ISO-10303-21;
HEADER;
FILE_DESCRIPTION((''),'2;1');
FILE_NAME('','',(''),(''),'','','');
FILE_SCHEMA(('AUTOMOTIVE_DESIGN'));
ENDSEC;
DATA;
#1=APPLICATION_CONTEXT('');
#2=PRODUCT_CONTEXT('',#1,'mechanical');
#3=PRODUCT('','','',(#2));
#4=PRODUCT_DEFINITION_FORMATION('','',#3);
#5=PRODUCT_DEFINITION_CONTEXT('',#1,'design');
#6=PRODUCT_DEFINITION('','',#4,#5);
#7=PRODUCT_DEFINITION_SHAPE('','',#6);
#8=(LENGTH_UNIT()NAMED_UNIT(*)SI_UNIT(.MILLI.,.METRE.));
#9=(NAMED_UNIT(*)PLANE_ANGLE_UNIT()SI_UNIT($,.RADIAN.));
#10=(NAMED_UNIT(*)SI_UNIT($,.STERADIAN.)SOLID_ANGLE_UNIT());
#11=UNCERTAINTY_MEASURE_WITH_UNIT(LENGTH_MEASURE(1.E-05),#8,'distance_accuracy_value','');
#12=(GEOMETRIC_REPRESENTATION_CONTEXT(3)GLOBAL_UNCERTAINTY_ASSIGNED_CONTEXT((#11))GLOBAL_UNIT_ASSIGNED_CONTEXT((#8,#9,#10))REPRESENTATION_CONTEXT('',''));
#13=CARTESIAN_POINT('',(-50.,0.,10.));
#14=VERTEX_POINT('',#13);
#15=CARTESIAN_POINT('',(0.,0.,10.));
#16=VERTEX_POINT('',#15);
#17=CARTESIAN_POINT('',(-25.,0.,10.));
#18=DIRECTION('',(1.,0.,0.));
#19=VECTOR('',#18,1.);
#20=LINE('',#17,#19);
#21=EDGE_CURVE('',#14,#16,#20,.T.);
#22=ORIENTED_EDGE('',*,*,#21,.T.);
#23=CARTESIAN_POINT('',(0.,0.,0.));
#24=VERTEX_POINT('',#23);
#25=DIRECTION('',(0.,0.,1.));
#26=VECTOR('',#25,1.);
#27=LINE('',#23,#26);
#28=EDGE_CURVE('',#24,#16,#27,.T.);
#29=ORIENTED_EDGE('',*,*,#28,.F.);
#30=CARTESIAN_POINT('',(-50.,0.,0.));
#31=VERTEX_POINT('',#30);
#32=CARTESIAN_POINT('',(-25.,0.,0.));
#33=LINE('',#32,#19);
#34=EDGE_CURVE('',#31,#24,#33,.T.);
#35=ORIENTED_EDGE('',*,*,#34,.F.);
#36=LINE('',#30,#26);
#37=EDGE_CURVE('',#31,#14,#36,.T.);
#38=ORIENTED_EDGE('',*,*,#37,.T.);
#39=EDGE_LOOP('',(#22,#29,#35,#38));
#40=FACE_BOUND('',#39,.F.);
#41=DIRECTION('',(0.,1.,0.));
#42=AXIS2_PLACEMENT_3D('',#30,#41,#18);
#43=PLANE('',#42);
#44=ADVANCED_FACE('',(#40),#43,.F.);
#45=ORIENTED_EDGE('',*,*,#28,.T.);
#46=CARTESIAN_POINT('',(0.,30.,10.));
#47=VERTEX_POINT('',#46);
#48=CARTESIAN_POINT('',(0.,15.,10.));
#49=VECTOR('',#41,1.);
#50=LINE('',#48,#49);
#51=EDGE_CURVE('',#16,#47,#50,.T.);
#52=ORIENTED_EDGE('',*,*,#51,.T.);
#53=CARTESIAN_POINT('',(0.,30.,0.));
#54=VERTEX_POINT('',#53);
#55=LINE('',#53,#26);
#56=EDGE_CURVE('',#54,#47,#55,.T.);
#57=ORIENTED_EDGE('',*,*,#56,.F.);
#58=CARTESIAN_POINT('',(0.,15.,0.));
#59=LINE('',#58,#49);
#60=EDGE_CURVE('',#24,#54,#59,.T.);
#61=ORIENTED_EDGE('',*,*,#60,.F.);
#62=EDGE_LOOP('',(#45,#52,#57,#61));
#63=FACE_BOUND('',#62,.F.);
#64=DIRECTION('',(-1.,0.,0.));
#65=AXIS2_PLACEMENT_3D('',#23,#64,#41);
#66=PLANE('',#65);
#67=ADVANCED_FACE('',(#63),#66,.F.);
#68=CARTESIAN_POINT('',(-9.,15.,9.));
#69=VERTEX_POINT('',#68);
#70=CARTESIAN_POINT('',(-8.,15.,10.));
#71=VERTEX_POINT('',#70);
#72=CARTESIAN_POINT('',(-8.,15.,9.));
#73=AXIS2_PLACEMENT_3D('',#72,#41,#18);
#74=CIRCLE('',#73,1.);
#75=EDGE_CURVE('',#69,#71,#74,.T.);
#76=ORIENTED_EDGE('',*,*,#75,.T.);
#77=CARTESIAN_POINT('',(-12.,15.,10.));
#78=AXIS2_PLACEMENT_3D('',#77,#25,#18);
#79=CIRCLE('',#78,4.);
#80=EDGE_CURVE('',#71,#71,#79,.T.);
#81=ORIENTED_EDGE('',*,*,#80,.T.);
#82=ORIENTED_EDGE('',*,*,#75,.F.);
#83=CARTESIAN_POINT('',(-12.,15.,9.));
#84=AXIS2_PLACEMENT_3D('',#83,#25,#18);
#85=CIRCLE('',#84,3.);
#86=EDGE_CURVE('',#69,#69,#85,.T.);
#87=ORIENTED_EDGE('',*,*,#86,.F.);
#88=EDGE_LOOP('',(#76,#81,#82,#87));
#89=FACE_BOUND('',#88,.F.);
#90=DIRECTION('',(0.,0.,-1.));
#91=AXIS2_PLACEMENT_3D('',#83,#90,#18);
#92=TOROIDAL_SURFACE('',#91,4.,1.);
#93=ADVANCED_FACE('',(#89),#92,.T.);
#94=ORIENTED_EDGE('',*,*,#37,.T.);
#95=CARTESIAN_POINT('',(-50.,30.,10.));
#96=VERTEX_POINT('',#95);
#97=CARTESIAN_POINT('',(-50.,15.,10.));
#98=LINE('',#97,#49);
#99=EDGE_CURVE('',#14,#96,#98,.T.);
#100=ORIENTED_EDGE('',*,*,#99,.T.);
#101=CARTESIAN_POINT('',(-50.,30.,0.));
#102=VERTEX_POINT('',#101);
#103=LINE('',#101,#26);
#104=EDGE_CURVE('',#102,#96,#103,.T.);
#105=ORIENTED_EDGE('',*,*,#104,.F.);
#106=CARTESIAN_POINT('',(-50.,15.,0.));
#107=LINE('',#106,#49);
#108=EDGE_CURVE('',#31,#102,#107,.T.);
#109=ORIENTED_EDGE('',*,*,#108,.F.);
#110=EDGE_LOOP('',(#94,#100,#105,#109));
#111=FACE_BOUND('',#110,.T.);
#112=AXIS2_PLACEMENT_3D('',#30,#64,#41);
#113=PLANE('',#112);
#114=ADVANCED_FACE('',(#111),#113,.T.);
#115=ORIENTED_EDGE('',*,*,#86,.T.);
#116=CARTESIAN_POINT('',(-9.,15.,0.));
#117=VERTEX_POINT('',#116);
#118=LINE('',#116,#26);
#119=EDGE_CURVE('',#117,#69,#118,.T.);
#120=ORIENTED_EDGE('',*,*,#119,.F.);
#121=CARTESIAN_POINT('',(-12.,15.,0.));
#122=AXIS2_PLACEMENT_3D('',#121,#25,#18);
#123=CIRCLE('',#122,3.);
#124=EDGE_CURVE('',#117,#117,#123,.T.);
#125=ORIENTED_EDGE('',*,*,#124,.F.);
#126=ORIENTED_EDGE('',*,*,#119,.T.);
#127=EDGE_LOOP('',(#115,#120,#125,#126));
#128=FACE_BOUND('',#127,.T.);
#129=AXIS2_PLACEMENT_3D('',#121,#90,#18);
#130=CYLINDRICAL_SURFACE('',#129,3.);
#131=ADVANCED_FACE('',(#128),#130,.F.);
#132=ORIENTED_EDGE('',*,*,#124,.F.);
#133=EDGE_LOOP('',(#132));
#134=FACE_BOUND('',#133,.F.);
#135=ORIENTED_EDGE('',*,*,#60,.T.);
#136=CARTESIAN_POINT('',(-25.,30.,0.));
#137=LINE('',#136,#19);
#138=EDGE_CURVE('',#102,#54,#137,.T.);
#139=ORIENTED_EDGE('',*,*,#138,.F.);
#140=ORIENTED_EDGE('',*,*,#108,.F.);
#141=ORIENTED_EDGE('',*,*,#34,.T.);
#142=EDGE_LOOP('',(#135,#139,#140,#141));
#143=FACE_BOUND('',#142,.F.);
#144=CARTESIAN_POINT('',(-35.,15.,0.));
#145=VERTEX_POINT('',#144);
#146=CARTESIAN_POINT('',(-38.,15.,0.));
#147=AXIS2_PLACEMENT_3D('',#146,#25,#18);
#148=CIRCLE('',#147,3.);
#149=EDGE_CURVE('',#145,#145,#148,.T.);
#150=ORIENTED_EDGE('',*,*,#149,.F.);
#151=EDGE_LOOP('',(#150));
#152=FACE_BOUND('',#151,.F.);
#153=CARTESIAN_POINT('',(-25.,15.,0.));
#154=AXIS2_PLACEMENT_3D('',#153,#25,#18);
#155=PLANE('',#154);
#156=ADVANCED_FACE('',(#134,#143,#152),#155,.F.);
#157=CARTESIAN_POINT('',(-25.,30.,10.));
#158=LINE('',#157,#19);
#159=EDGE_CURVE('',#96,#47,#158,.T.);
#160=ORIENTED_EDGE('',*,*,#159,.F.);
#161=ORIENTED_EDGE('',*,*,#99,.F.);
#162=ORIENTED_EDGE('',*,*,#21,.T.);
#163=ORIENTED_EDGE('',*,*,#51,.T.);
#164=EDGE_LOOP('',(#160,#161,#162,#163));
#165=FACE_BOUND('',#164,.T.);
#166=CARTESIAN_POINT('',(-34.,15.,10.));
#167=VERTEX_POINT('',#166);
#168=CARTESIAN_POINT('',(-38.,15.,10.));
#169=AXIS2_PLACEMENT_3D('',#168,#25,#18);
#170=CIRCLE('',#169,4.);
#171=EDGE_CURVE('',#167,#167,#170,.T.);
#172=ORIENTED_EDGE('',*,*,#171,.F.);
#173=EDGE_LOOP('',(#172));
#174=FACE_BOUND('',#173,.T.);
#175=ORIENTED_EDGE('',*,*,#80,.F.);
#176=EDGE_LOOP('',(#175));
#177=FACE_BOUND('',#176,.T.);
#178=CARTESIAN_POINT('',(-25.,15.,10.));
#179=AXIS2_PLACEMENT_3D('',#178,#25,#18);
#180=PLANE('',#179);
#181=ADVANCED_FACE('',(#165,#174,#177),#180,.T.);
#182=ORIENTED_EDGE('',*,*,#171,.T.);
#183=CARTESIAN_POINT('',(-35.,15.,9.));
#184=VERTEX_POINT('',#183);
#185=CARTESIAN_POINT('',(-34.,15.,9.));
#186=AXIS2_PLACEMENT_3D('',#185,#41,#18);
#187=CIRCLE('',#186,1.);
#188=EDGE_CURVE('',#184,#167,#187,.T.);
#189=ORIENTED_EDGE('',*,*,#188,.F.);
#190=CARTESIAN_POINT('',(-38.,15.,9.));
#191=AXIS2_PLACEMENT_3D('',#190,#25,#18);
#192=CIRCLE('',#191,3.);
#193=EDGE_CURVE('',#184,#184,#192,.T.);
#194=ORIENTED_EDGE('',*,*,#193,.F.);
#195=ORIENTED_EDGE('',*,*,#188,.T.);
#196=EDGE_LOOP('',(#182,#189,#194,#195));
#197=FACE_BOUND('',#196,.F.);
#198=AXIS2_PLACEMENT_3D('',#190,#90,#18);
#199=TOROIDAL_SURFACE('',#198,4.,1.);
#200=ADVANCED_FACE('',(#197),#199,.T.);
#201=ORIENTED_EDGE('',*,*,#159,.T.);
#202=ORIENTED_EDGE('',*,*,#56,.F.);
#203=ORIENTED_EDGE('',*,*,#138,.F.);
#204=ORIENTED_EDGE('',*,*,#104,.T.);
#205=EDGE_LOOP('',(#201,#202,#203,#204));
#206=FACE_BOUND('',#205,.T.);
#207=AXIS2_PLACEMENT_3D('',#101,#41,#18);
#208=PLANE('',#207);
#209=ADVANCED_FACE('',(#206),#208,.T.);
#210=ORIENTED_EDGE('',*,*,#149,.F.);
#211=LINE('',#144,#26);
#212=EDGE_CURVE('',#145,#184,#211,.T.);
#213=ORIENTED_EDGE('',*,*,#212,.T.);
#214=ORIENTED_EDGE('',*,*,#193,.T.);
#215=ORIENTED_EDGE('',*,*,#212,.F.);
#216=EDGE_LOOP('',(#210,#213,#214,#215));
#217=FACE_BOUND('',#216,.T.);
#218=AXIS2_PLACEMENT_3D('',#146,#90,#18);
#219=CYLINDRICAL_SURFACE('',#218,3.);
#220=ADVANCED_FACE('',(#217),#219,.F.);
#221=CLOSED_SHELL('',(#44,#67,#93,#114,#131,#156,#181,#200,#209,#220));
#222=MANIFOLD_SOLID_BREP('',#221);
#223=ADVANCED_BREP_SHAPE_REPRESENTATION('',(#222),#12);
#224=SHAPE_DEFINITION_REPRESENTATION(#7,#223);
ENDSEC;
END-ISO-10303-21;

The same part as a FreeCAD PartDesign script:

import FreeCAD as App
import Part
import Sketcher
from FreeCAD import Vector


def edges_at(feature, points):
    """Names of the edges that pass closest to the given points."""
    edges = feature.Shape.Edges
    near = lambda p: min(range(len(edges)), key=lambda i: edges[i].distToShape(Part.Vertex(*p))[0])
    return sorted({f"Edge{near(p) + 1}" for p in points})

doc = App.newDocument("Part")
body = doc.addObject("PartDesign::Body", "Body")

sketch1 = body.newObject("Sketcher::SketchObject", "Sketch")
sketch1.AttachmentSupport = (doc.getObject("XY_Plane"), [""])
sketch1.MapMode = "FlatFace"
sketch1.addGeometry(Part.LineSegment(Vector(-50, 30, 0), Vector(-50, 0, 0)), False)
sketch1.addGeometry(Part.LineSegment(Vector(-50, 0, 0), Vector(0, 0, 0)), False)
sketch1.addGeometry(Part.LineSegment(Vector(0, 0, 0), Vector(0, 30, 0)), False)
sketch1.addGeometry(Part.LineSegment(Vector(0, 30, 0), Vector(-50, 30, 0)), False)
sketch1.addGeometry(Part.Circle(Vector(-38, 15, 0), Vector(0, 0, 1), 3), False)
sketch1.addGeometry(Part.Circle(Vector(-12, 15, 0), Vector(0, 0, 1), 3), False)
sketch1.addConstraint(Sketcher.Constraint("Coincident", 0, 2, 1, 1))
sketch1.addConstraint(Sketcher.Constraint("Coincident", 1, 2, 2, 1))
sketch1.addConstraint(Sketcher.Constraint("Coincident", 2, 2, 3, 1))
sketch1.addConstraint(Sketcher.Constraint("Coincident", 3, 2, 0, 1))
sketch1.addConstraint(Sketcher.Constraint("Vertical", 0))
sketch1.addConstraint(Sketcher.Constraint("Horizontal", 1))
sketch1.addConstraint(Sketcher.Constraint("Vertical", 2))
sketch1.addConstraint(Sketcher.Constraint("Horizontal", 3))
sketch1.addConstraint(Sketcher.Constraint("Coincident", 1, 2, -1, 1))
sketch1.addConstraint(Sketcher.Constraint("Equal", 4, 5))
sketch1.addConstraint(Sketcher.Constraint("Horizontal", 4, 3, 5, 3))
sketch1.addConstraint(Sketcher.Constraint("Diameter", 4, 6.0))
sketch1.addConstraint(Sketcher.Constraint("DistanceX", 1, 1, 1, 2, 50.0))
sketch1.addConstraint(Sketcher.Constraint("DistanceY", 0, 2, 0, 1, 30.0))
sketch1.addConstraint(Sketcher.Constraint("DistanceX", 4, 3, -1, 1, 38.0))
sketch1.addConstraint(Sketcher.Constraint("DistanceY", -1, 1, 4, 3, 15.0))
sketch1.addConstraint(Sketcher.Constraint("DistanceX", 5, 3, -1, 1, 12.0))
pad1 = body.newObject("PartDesign::Pad", "Pad")
pad1.Profile = sketch1
pad1.Length = 10
doc.recompute()

fillet = body.newObject("PartDesign::Fillet", "Fillet")
fillet.Base = (pad1, edges_at(pad1, [(-41, 15, 10), (-15, 15, 10)]))
fillet.Radius = 1

doc.recompute()
